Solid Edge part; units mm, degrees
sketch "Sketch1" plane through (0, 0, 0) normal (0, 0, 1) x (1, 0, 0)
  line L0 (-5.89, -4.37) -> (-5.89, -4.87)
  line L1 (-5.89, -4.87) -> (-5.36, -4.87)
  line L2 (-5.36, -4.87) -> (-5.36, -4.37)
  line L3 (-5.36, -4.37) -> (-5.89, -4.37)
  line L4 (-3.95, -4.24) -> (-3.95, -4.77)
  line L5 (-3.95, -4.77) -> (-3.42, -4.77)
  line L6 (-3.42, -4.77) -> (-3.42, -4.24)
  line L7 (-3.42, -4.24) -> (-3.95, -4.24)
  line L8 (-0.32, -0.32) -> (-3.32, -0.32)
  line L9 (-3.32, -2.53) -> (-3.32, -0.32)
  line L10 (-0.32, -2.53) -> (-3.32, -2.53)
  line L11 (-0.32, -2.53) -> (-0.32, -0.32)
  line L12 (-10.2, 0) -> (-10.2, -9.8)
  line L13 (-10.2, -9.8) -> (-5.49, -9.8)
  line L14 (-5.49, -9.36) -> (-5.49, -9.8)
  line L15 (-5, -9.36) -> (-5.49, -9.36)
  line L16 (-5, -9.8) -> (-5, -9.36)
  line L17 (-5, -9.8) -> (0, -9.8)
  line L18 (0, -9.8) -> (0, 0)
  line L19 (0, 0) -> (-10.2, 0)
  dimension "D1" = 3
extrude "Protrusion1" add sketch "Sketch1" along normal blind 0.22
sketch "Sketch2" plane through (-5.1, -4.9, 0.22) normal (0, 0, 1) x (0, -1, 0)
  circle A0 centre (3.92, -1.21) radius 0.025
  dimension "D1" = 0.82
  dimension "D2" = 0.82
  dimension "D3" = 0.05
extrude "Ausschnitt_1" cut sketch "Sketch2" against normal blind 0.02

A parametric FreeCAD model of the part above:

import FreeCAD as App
import Part
import Sketcher
from FreeCAD import Vector
Q = App.Units.Quantity


def add_polygon(sketch, points):
    """Adds a closed chain of lines whose ends are joined by coincident constraints."""
    first, n = sketch.GeometryCount, len(points)
    for a, b in zip(points, points[1:] + points[:1]):
        sketch.addGeometry(Part.LineSegment(App.Vector(*a, 0), App.Vector(*b, 0)), False)
    for i in range(n):
        sketch.addConstraint(Sketcher.Constraint("Coincident", first + i, 2, first + (i + 1) % n, 1))

doc = App.newDocument("Part")
body = doc.addObject("PartDesign::Body", "Body")

# Sketch on XY plane
sketch1 = doc.addObject("Sketcher::SketchObject", "Sketch")
body.addObject(sketch1)
sketch1.AttachmentSupport = (doc.XY_Plane, [""])
sketch1.MapMode = "FlatFace"
add_polygon(sketch1, [(0, 0), (-10.2, 0), (-10.2, -9.8), (-5.49, -9.8), (-5.49, -9.36), (-5, -9.36), (-5, -9.8), (0, -9.8)])  # lines 0-7
add_polygon(sketch1, [(-5.89, -4.87), (-5.89, -4.37), (-5.36, -4.37), (-5.36, -4.87)])  # lines 8-11
add_polygon(sketch1, [(-3.95, -4.77), (-3.95, -4.24), (-3.42, -4.24), (-3.42, -4.77)])  # lines 12-15
add_polygon(sketch1, [(-3.32, -0.32), (-0.32, -0.32), (-0.32, -2.53), (-3.32, -2.53)])  # lines 16-19
sketch1.addConstraint([
    Sketcher.Constraint("Horizontal", 0),
    Sketcher.Constraint("Vertical", 1),
    Sketcher.Constraint("Horizontal", 2),
    Sketcher.Constraint("Vertical", 3),
    Sketcher.Constraint("Horizontal", 4),
    Sketcher.Constraint("Vertical", 5),
    Sketcher.Constraint("Horizontal", 6),
    Sketcher.Constraint("Vertical", 7),
    Sketcher.Constraint("Vertical", 8),
    Sketcher.Constraint("Horizontal", 9),
    Sketcher.Constraint("Vertical", 10),
    Sketcher.Constraint("Horizontal", 11),
    Sketcher.Constraint("Vertical", 12),
    Sketcher.Constraint("Horizontal", 13),
    Sketcher.Constraint("Vertical", 14),
    Sketcher.Constraint("Horizontal", 15),
    Sketcher.Constraint("Horizontal", 16),
    Sketcher.Constraint("Vertical", 17),
    Sketcher.Constraint("Horizontal", 18),
    Sketcher.Constraint("Vertical", 19),
    Sketcher.Constraint("Coincident", 7, 2, -1, 1),
    Sketcher.Constraint("Horizontal", 2, 2, 5, 2),
    Sketcher.Constraint("Equal", 11, 13),
    Sketcher.Constraint("Equal", 15, 12),
    Sketcher.Constraint("DistanceX", 6, 1, 6, 2, Q("5 mm")),
    Sketcher.Constraint("DistanceX", 16, 1, 16, 2, Q("3 mm")),
    Sketcher.Constraint("DistanceX", 16, 2, -1, 1, Q("0.32 mm")),
    Sketcher.Constraint("DistanceY", 16, 2, -1, 1, Q("0.32 mm")),
    Sketcher.Constraint("DistanceX", 0, 2, 0, 1, Q("10.2 mm")),
    Sketcher.Constraint("DistanceY", 1, 2, 1, 1, Q("9.8 mm")),
    Sketcher.Constraint("DistanceY", 8, 1, 8, 2, Q("0.5 mm")),
    Sketcher.Constraint("DistanceX", 2, 1, 2, 2, Q("4.71 mm")),
    Sketcher.Constraint("DistanceX", 9, 1, 9, 2, Q("0.53 mm")),
    Sketcher.Constraint("DistanceY", 3, 1, 3, 2, Q("0.44 mm")),
    Sketcher.Constraint("DistanceY", 17, 2, 17, 1, Q("2.21 mm")),
    Sketcher.Constraint("DistanceX", 8, 2, 3, 2, Q("0.4 mm")),
    Sketcher.Constraint("DistanceY", 10, 2, 14, 2, Q("0.1 mm")),
    Sketcher.Constraint("DistanceX", 13, 2, 16, 2, Q("3.1 mm")),
    Sketcher.Constraint("DistanceY", 8, 2, -1, 1, Q("4.37 mm")),
])
pad1 = doc.addObject("PartDesign::Pad", "Pad")
body.addObject(pad1)
pad1.Profile = sketch1
pad1.Length = 0.22

# Sketch on XY plane
sketch2 = doc.addObject("Sketcher::SketchObject", "Sketch001")
body.addObject(sketch2)
sketch2.AttachmentSupport = (doc.XY_Plane, [""])
sketch2.MapMode = "FlatFace"
sketch2.AttachmentOffset = App.Placement(Vector(0, 0, 0.22), App.Rotation())
sketch2.addGeometry(Part.Circle(Vector(-6.31, -8.82, 0), Vector(0, 0, 1), 0.025), False)
sketch2.addConstraint([
    Sketcher.Constraint("Diameter", 0, Q("0.05 mm")),
    Sketcher.Constraint("DistanceX", 0, 3, -1, 1, Q("6.31 mm")),
    Sketcher.Constraint("DistanceY", 0, 3, -1, 1, Q("8.82 mm")),
])
pocket1 = doc.addObject("PartDesign::Pocket", "Pocket")
body.addObject(pocket1)
pocket1.Profile = sketch2
pocket1.Length = 0.02

doc.recompute()
